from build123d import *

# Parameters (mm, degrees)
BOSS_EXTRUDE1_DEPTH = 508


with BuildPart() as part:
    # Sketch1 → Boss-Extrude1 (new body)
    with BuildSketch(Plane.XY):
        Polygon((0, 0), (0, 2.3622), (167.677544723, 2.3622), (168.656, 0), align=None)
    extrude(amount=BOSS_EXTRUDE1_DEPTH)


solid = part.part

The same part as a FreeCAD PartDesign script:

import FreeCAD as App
import Part
import Sketcher
Q = App.Units.Quantity


def add_polygon(sketch, points):
    """Adds a closed chain of lines whose ends are joined by coincident constraints."""
    first, n = sketch.GeometryCount, len(points)
    for a, b in zip(points, points[1:] + points[:1]):
        sketch.addGeometry(Part.LineSegment(App.Vector(*a, 0), App.Vector(*b, 0)), False)
    for i in range(n):
        sketch.addConstraint(Sketcher.Constraint("Coincident", first + i, 2, first + (i + 1) % n, 1))

doc = App.newDocument("Part")
body = doc.addObject("PartDesign::Body", "Body")

# Sketch on XY plane
sketch1 = doc.addObject("Sketcher::SketchObject", "Sketch")
body.addObject(sketch1)
sketch1.AttachmentSupport = (doc.XY_Plane, [""])
sketch1.MapMode = "FlatFace"
add_polygon(sketch1, [(0, 2.4), (0, 0), (168.7, 0), (167.7, 2.4)])  # lines 0-3
sketch1.addConstraint([
    Sketcher.Constraint("Vertical", 0),
    Sketcher.Constraint("Horizontal", 1),
    Sketcher.Constraint("Horizontal", 3),
    Sketcher.Constraint("Coincident", 0, 2, -1, 1),
    Sketcher.Constraint("DistanceX", 1, 1, 1, 2, Q("6.64 in")),
    Sketcher.Constraint("Angle", 2, Q("112.5 deg")),
    Sketcher.Constraint("DistanceY", 0, 2, 0, 1, Q("0.093 in")),
])
pad1 = doc.addObject("PartDesign::Pad", "Pad")
body.addObject(pad1)
pad1.Profile = sketch1
pad1.Length = Q("20 in")

doc.recompute()
